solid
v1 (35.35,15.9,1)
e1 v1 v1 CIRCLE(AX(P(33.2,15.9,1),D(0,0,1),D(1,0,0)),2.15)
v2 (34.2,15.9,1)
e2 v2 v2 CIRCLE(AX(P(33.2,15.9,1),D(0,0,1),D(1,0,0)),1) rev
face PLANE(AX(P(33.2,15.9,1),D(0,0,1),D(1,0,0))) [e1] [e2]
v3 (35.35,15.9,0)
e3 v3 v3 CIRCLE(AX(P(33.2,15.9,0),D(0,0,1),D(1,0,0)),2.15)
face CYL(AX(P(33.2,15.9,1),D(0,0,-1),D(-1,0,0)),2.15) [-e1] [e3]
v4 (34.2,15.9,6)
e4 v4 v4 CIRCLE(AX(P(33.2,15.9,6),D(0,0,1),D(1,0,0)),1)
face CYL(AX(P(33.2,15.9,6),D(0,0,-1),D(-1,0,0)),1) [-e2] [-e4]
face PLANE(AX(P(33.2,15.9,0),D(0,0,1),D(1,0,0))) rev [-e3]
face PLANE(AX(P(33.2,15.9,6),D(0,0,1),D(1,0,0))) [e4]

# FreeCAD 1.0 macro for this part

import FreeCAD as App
import Part
import Sketcher

V = App.Vector
Q = App.Units.Quantity

doc = App.newDocument("Part")
params = doc.addObject("Spreadsheet::Sheet", "Params")
for row, (alias, value) in enumerate([
    ("sketch1_diameter", "4.3 mm"),
    ("pad1_length", "1 mm"),
    ("sketch2_diameter", "2 mm"),
    ("pad2_length", "6 mm"),
], start=1):
    params.set(f"A{row}", alias)
    params.set(f"B{row}", "=" + value)
    params.setAlias(f"B{row}", alias)

body = doc.addObject("PartDesign::Body", "Body")

# Sketch on XY plane
sketch1 = body.newObject("Sketcher::SketchObject", "Sketch")
sketch1.AttachmentSupport = (doc.getObject("XY_Plane"), [""])
sketch1.MapMode = "FlatFace"
sketch1.addGeometry(Part.Circle(V(33.2, 15.9, 0), V(0, 0, 1), 2.15), False)
sketch1.addConstraint([
    Sketcher.Constraint("Diameter", 0, Q("4.3 mm")),
    Sketcher.Constraint("DistanceX", -1, 1, 0, 3, Q("33.2 mm")),
    Sketcher.Constraint("DistanceY", -1, 1, 0, 3, Q("15.9 mm")),
])
sketch1.setExpression("Constraints[0]", "Params.sketch1_diameter")
pad1 = body.newObject("PartDesign::Pad", "Pad")
pad1.Profile = sketch1
pad1.setExpression("Length", "Params.pad1_length")

# Sketch on XY plane
sketch2 = body.newObject("Sketcher::SketchObject", "Sketch001")
sketch2.AttachmentSupport = (doc.getObject("XY_Plane"), [""])
sketch2.MapMode = "FlatFace"
sketch2.addGeometry(Part.Circle(V(33.2, 15.9, 0), V(0, 0, 1), 1), False)
sketch2.addConstraint([
    Sketcher.Constraint("Diameter", 0, Q("2 mm")),
    Sketcher.Constraint("DistanceX", -1, 1, 0, 3, Q("33.2 mm")),
    Sketcher.Constraint("DistanceY", -1, 1, 0, 3, Q("15.9 mm")),
])
sketch2.setExpression("Constraints[0]", "Params.sketch2_diameter")
pad2 = body.newObject("PartDesign::Pad", "Pad001")
pad2.Profile = sketch2
pad2.setExpression("Length", "Params.pad2_length")

doc.recompute()
